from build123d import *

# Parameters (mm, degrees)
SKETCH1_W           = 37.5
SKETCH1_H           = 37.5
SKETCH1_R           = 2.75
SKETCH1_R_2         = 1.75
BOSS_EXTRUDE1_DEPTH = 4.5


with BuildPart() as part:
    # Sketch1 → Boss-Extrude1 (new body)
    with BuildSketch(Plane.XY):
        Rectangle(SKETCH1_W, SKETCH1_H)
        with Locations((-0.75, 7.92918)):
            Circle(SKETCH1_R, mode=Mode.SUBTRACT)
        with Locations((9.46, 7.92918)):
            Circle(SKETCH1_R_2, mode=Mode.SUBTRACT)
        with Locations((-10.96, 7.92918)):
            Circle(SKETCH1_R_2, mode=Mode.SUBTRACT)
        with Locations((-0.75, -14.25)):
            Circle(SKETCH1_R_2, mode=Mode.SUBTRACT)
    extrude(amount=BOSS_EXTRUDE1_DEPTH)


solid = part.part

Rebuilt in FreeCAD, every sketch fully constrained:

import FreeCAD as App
import Part
import Sketcher

V = App.Vector

doc = App.newDocument("Part")
body = doc.addObject("PartDesign::Body", "Body")

sketch1 = doc.addObject("Sketcher::SketchObject", "Sketch")
body.addObject(sketch1)
sketch1.AttachmentSupport = (doc.XY_Plane, [""])
sketch1.MapMode = "FlatFace"
sketch1.addGeometry(Part.LineSegment(V(-18.8, 18.8, 0), V(-18.8, -18.8, 0)), False)
sketch1.addGeometry(Part.LineSegment(V(-18.8, -18.8, 0), V(18.8, -18.8, 0)), False)
sketch1.addGeometry(Part.LineSegment(V(18.8, -18.8, 0), V(18.8, 18.8, 0)), False)
sketch1.addGeometry(Part.LineSegment(V(18.8, 18.8, 0), V(-18.8, 18.8, 0)), False)
sketch1.addGeometry(Part.Circle(V(-0.8, -14.2, 0), V(0, 0, 1), 1.8), False)
sketch1.addGeometry(Part.Circle(V(-11, 7.9, 0), V(0, 0, 1), 1.8), False)
sketch1.addGeometry(Part.Circle(V(-0.8, 7.9, 0), V(0, 0, 1), 2.8), False)
sketch1.addGeometry(Part.Circle(V(9.5, 7.9, 0), V(0, 0, 1), 1.8), False)
sketch1.addConstraint(Sketcher.Constraint("Coincident", 0, 2, 1, 1))
sketch1.addConstraint(Sketcher.Constraint("Coincident", 1, 2, 2, 1))
sketch1.addConstraint(Sketcher.Constraint("Coincident", 2, 2, 3, 1))
sketch1.addConstraint(Sketcher.Constraint("Coincident", 3, 2, 0, 1))
sketch1.addConstraint(Sketcher.Constraint("Vertical", 0))
sketch1.addConstraint(Sketcher.Constraint("Horizontal", 1))
sketch1.addConstraint(Sketcher.Constraint("Vertical", 2))
sketch1.addConstraint(Sketcher.Constraint("Horizontal", 3))
sketch1.addConstraint(Sketcher.Constraint("Equal", 4, 5))
sketch1.addConstraint(Sketcher.Constraint("Equal", 5, 7))
sketch1.addConstraint(Sketcher.Constraint("Symmetric", 0, 2, 2, 2, -1, 1))
sketch1.addConstraint(Sketcher.Constraint("Horizontal", 5, 3, 6, 3))
sketch1.addConstraint(Sketcher.Constraint("Horizontal", 6, 3, 7, 3))
sketch1.addConstraint(Sketcher.Constraint("Vertical", 4, 3, 6, 3))
sketch1.addConstraint(Sketcher.Constraint("Equal", 3, 0))
sketch1.addConstraint(Sketcher.Constraint("Diameter", 4, 3.5))
sketch1.addConstraint(Sketcher.Constraint("Diameter", 6, 5.5))
sketch1.addConstraint(Sketcher.Constraint("DistanceX", 1, 1, 1, 2, 37.5))
sketch1.addConstraint(Sketcher.Constraint("DistanceX", 0, 2, 4, 3, 18.0))
sketch1.addConstraint(Sketcher.Constraint("DistanceY", 4, 3, 2, 2, 33.0))
sketch1.addConstraint(Sketcher.Constraint("DistanceX", 5, 3, -1, 1, 10.96))
sketch1.addConstraint(Sketcher.Constraint("DistanceX", -1, 1, 7, 3, 9.46))
sketch1.addConstraint(Sketcher.Constraint("DistanceY", -1, 1, 5, 3, 7.92918))
pad1 = doc.addObject("PartDesign::Pad", "Pad")
body.addObject(pad1)
pad1.Profile = sketch1
pad1.Length = 4.5

doc.recompute()
